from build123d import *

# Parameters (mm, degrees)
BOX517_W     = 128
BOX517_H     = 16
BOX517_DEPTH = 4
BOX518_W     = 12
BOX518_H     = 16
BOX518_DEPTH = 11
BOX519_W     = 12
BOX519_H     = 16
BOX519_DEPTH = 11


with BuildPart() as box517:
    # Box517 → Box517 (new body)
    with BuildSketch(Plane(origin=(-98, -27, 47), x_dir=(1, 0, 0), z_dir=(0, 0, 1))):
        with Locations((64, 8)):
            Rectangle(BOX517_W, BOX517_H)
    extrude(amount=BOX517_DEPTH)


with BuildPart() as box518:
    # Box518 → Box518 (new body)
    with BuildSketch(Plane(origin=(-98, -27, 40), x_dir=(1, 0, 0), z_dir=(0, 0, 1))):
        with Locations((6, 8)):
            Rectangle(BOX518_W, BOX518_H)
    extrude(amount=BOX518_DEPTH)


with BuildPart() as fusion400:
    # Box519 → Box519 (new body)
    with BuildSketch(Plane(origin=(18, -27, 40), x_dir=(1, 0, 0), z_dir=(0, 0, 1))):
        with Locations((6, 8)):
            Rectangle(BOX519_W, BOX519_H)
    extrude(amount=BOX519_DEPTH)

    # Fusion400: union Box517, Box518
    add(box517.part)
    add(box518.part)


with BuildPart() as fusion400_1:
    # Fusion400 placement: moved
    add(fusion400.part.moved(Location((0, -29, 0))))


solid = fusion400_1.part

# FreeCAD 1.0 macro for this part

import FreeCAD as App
import Part
import Sketcher
Q = App.Units.Quantity

doc = App.newDocument("Part")
body = doc.addObject("PartDesign::Body", "Body")

# Sketch on XY plane
sketch1 = doc.addObject("Sketcher::SketchObject", "Sketch")
body.addObject(sketch1)
sketch1.AttachmentSupport = (doc.XY_Plane, [""])
sketch1.MapMode = "FlatFace"
sketch1.AttachmentOffset = App.Placement(App.Vector(0, 0, 47), App.Rotation())
sketch1.addGeometry(Part.LineSegment(App.Vector(-98, -11, 0), App.Vector(-98, -27, 0)), False)
sketch1.addGeometry(Part.LineSegment(App.Vector(-98, -27, 0), App.Vector(30, -27, 0)), False)
sketch1.addGeometry(Part.LineSegment(App.Vector(30, -27, 0), App.Vector(30, -11, 0)), False)
sketch1.addGeometry(Part.LineSegment(App.Vector(30, -11, 0), App.Vector(-98, -11, 0)), False)
sketch1.addConstraint(Sketcher.Constraint("Coincident", 0, 2, 1, 1))
sketch1.addConstraint(Sketcher.Constraint("Coincident", 1, 2, 2, 1))
sketch1.addConstraint(Sketcher.Constraint("Coincident", 2, 2, 3, 1))
sketch1.addConstraint(Sketcher.Constraint("Coincident", 3, 2, 0, 1))
sketch1.addConstraint(Sketcher.Constraint("Vertical", 0))
sketch1.addConstraint(Sketcher.Constraint("Horizontal", 1))
sketch1.addConstraint(Sketcher.Constraint("Vertical", 2))
sketch1.addConstraint(Sketcher.Constraint("Horizontal", 3))
sketch1.addConstraint(Sketcher.Constraint("DistanceX", 1, 1, 1, 2, Q("128 mm")))
sketch1.addConstraint(Sketcher.Constraint("DistanceY", 0, 2, 0, 1, Q("16 mm")))
sketch1.addConstraint(Sketcher.Constraint("DistanceX", 0, 2, -1, 1, Q("98 mm")))
sketch1.addConstraint(Sketcher.Constraint("DistanceY", 0, 2, -1, 1, Q("27 mm")))
pad1 = doc.addObject("PartDesign::Pad", "Pad")
body.addObject(pad1)
pad1.Profile = sketch1
pad1.Length = 4
body2 = doc.addObject("PartDesign::Body", "Body001")

# Sketch on XY plane
sketch2 = doc.addObject("Sketcher::SketchObject", "Sketch001")
body2.addObject(sketch2)
sketch2.AttachmentSupport = (doc.getObject("XY_Plane001"), [""])
sketch2.MapMode = "FlatFace"
sketch2.AttachmentOffset = App.Placement(App.Vector(0, 0, 40), App.Rotation())
sketch2.addGeometry(Part.LineSegment(App.Vector(-98, -11, 0), App.Vector(-98, -27, 0)), False)
sketch2.addGeometry(Part.LineSegment(App.Vector(-98, -27, 0), App.Vector(-86, -27, 0)), False)
sketch2.addGeometry(Part.LineSegment(App.Vector(-86, -27, 0), App.Vector(-86, -11, 0)), False)
sketch2.addGeometry(Part.LineSegment(App.Vector(-86, -11, 0), App.Vector(-98, -11, 0)), False)
sketch2.addConstraint(Sketcher.Constraint("Coincident", 0, 2, 1, 1))
sketch2.addConstraint(Sketcher.Constraint("Coincident", 1, 2, 2, 1))
sketch2.addConstraint(Sketcher.Constraint("Coincident", 2, 2, 3, 1))
sketch2.addConstraint(Sketcher.Constraint("Coincident", 3, 2, 0, 1))
sketch2.addConstraint(Sketcher.Constraint("Vertical", 0))
sketch2.addConstraint(Sketcher.Constraint("Horizontal", 1))
sketch2.addConstraint(Sketcher.Constraint("Vertical", 2))
sketch2.addConstraint(Sketcher.Constraint("Horizontal", 3))
sketch2.addConstraint(Sketcher.Constraint("DistanceX", 1, 1, 1, 2, Q("12 mm")))
sketch2.addConstraint(Sketcher.Constraint("DistanceY", 0, 2, 0, 1, Q("16 mm")))
sketch2.addConstraint(Sketcher.Constraint("DistanceX", 0, 2, -1, 1, Q("98 mm")))
sketch2.addConstraint(Sketcher.Constraint("DistanceY", 0, 2, -1, 1, Q("27 mm")))
pad2 = doc.addObject("PartDesign::Pad", "Pad001")
body2.addObject(pad2)
pad2.Profile = sketch2
pad2.Length = 11
body3 = doc.addObject("PartDesign::Body", "Body002")

# Sketch on XY plane
sketch3 = doc.addObject("Sketcher::SketchObject", "Sketch002")
body3.addObject(sketch3)
sketch3.AttachmentSupport = (doc.getObject("XY_Plane002"), [""])
sketch3.MapMode = "FlatFace"
sketch3.AttachmentOffset = App.Placement(App.Vector(0, 0, 40), App.Rotation())
sketch3.addGeometry(Part.LineSegment(App.Vector(18, -11, 0), App.Vector(18, -27, 0)), False)
sketch3.addGeometry(Part.LineSegment(App.Vector(18, -27, 0), App.Vector(30, -27, 0)), False)
sketch3.addGeometry(Part.LineSegment(App.Vector(30, -27, 0), App.Vector(30, -11, 0)), False)
sketch3.addGeometry(Part.LineSegment(App.Vector(30, -11, 0), App.Vector(18, -11, 0)), False)
sketch3.addConstraint(Sketcher.Constraint("Coincident", 0, 2, 1, 1))
sketch3.addConstraint(Sketcher.Constraint("Coincident", 1, 2, 2, 1))
sketch3.addConstraint(Sketcher.Constraint("Coincident", 2, 2, 3, 1))
sketch3.addConstraint(Sketcher.Constraint("Coincident", 3, 2, 0, 1))
sketch3.addConstraint(Sketcher.Constraint("Vertical", 0))
sketch3.addConstraint(Sketcher.Constraint("Horizontal", 1))
sketch3.addConstraint(Sketcher.Constraint("Vertical", 2))
sketch3.addConstraint(Sketcher.Constraint("Horizontal", 3))
sketch3.addConstraint(Sketcher.Constraint("DistanceX", 1, 1, 1, 2, Q("12 mm")))
sketch3.addConstraint(Sketcher.Constraint("DistanceY", 0, 2, 0, 1, Q("16 mm")))
sketch3.addConstraint(Sketcher.Constraint("DistanceX", -1, 1, 0, 2, Q("18 mm")))
sketch3.addConstraint(Sketcher.Constraint("DistanceY", 0, 2, -1, 1, Q("27 mm")))
pad3 = doc.addObject("PartDesign::Pad", "Pad002")
body3.addObject(pad3)
pad3.Profile = sketch3
pad3.Length = 11
doc.recompute()

boolean = doc.addObject("PartDesign::Boolean", "Boolean")
body3.addObject(boolean)
boolean.Type = "Fuse"
boolean.addObjects([body])
doc.recompute()

boolean2 = doc.addObject("PartDesign::Boolean", "Boolean001")
body3.addObject(boolean2)
boolean2.Type = "Fuse"
boolean2.addObjects([body2])
body4 = doc.addObject("PartDesign::Body", "Body003")
doc.recompute()

body3.Placement = App.Placement(App.Vector(0, -29, 0), App.Rotation(App.Vector(0, 0, 1), 0))
boolean3 = doc.addObject("PartDesign::Boolean", "Boolean002")
body4.addObject(boolean3)
boolean3.Type = "Fuse"
boolean3.addObjects([body3])

doc.recompute()
